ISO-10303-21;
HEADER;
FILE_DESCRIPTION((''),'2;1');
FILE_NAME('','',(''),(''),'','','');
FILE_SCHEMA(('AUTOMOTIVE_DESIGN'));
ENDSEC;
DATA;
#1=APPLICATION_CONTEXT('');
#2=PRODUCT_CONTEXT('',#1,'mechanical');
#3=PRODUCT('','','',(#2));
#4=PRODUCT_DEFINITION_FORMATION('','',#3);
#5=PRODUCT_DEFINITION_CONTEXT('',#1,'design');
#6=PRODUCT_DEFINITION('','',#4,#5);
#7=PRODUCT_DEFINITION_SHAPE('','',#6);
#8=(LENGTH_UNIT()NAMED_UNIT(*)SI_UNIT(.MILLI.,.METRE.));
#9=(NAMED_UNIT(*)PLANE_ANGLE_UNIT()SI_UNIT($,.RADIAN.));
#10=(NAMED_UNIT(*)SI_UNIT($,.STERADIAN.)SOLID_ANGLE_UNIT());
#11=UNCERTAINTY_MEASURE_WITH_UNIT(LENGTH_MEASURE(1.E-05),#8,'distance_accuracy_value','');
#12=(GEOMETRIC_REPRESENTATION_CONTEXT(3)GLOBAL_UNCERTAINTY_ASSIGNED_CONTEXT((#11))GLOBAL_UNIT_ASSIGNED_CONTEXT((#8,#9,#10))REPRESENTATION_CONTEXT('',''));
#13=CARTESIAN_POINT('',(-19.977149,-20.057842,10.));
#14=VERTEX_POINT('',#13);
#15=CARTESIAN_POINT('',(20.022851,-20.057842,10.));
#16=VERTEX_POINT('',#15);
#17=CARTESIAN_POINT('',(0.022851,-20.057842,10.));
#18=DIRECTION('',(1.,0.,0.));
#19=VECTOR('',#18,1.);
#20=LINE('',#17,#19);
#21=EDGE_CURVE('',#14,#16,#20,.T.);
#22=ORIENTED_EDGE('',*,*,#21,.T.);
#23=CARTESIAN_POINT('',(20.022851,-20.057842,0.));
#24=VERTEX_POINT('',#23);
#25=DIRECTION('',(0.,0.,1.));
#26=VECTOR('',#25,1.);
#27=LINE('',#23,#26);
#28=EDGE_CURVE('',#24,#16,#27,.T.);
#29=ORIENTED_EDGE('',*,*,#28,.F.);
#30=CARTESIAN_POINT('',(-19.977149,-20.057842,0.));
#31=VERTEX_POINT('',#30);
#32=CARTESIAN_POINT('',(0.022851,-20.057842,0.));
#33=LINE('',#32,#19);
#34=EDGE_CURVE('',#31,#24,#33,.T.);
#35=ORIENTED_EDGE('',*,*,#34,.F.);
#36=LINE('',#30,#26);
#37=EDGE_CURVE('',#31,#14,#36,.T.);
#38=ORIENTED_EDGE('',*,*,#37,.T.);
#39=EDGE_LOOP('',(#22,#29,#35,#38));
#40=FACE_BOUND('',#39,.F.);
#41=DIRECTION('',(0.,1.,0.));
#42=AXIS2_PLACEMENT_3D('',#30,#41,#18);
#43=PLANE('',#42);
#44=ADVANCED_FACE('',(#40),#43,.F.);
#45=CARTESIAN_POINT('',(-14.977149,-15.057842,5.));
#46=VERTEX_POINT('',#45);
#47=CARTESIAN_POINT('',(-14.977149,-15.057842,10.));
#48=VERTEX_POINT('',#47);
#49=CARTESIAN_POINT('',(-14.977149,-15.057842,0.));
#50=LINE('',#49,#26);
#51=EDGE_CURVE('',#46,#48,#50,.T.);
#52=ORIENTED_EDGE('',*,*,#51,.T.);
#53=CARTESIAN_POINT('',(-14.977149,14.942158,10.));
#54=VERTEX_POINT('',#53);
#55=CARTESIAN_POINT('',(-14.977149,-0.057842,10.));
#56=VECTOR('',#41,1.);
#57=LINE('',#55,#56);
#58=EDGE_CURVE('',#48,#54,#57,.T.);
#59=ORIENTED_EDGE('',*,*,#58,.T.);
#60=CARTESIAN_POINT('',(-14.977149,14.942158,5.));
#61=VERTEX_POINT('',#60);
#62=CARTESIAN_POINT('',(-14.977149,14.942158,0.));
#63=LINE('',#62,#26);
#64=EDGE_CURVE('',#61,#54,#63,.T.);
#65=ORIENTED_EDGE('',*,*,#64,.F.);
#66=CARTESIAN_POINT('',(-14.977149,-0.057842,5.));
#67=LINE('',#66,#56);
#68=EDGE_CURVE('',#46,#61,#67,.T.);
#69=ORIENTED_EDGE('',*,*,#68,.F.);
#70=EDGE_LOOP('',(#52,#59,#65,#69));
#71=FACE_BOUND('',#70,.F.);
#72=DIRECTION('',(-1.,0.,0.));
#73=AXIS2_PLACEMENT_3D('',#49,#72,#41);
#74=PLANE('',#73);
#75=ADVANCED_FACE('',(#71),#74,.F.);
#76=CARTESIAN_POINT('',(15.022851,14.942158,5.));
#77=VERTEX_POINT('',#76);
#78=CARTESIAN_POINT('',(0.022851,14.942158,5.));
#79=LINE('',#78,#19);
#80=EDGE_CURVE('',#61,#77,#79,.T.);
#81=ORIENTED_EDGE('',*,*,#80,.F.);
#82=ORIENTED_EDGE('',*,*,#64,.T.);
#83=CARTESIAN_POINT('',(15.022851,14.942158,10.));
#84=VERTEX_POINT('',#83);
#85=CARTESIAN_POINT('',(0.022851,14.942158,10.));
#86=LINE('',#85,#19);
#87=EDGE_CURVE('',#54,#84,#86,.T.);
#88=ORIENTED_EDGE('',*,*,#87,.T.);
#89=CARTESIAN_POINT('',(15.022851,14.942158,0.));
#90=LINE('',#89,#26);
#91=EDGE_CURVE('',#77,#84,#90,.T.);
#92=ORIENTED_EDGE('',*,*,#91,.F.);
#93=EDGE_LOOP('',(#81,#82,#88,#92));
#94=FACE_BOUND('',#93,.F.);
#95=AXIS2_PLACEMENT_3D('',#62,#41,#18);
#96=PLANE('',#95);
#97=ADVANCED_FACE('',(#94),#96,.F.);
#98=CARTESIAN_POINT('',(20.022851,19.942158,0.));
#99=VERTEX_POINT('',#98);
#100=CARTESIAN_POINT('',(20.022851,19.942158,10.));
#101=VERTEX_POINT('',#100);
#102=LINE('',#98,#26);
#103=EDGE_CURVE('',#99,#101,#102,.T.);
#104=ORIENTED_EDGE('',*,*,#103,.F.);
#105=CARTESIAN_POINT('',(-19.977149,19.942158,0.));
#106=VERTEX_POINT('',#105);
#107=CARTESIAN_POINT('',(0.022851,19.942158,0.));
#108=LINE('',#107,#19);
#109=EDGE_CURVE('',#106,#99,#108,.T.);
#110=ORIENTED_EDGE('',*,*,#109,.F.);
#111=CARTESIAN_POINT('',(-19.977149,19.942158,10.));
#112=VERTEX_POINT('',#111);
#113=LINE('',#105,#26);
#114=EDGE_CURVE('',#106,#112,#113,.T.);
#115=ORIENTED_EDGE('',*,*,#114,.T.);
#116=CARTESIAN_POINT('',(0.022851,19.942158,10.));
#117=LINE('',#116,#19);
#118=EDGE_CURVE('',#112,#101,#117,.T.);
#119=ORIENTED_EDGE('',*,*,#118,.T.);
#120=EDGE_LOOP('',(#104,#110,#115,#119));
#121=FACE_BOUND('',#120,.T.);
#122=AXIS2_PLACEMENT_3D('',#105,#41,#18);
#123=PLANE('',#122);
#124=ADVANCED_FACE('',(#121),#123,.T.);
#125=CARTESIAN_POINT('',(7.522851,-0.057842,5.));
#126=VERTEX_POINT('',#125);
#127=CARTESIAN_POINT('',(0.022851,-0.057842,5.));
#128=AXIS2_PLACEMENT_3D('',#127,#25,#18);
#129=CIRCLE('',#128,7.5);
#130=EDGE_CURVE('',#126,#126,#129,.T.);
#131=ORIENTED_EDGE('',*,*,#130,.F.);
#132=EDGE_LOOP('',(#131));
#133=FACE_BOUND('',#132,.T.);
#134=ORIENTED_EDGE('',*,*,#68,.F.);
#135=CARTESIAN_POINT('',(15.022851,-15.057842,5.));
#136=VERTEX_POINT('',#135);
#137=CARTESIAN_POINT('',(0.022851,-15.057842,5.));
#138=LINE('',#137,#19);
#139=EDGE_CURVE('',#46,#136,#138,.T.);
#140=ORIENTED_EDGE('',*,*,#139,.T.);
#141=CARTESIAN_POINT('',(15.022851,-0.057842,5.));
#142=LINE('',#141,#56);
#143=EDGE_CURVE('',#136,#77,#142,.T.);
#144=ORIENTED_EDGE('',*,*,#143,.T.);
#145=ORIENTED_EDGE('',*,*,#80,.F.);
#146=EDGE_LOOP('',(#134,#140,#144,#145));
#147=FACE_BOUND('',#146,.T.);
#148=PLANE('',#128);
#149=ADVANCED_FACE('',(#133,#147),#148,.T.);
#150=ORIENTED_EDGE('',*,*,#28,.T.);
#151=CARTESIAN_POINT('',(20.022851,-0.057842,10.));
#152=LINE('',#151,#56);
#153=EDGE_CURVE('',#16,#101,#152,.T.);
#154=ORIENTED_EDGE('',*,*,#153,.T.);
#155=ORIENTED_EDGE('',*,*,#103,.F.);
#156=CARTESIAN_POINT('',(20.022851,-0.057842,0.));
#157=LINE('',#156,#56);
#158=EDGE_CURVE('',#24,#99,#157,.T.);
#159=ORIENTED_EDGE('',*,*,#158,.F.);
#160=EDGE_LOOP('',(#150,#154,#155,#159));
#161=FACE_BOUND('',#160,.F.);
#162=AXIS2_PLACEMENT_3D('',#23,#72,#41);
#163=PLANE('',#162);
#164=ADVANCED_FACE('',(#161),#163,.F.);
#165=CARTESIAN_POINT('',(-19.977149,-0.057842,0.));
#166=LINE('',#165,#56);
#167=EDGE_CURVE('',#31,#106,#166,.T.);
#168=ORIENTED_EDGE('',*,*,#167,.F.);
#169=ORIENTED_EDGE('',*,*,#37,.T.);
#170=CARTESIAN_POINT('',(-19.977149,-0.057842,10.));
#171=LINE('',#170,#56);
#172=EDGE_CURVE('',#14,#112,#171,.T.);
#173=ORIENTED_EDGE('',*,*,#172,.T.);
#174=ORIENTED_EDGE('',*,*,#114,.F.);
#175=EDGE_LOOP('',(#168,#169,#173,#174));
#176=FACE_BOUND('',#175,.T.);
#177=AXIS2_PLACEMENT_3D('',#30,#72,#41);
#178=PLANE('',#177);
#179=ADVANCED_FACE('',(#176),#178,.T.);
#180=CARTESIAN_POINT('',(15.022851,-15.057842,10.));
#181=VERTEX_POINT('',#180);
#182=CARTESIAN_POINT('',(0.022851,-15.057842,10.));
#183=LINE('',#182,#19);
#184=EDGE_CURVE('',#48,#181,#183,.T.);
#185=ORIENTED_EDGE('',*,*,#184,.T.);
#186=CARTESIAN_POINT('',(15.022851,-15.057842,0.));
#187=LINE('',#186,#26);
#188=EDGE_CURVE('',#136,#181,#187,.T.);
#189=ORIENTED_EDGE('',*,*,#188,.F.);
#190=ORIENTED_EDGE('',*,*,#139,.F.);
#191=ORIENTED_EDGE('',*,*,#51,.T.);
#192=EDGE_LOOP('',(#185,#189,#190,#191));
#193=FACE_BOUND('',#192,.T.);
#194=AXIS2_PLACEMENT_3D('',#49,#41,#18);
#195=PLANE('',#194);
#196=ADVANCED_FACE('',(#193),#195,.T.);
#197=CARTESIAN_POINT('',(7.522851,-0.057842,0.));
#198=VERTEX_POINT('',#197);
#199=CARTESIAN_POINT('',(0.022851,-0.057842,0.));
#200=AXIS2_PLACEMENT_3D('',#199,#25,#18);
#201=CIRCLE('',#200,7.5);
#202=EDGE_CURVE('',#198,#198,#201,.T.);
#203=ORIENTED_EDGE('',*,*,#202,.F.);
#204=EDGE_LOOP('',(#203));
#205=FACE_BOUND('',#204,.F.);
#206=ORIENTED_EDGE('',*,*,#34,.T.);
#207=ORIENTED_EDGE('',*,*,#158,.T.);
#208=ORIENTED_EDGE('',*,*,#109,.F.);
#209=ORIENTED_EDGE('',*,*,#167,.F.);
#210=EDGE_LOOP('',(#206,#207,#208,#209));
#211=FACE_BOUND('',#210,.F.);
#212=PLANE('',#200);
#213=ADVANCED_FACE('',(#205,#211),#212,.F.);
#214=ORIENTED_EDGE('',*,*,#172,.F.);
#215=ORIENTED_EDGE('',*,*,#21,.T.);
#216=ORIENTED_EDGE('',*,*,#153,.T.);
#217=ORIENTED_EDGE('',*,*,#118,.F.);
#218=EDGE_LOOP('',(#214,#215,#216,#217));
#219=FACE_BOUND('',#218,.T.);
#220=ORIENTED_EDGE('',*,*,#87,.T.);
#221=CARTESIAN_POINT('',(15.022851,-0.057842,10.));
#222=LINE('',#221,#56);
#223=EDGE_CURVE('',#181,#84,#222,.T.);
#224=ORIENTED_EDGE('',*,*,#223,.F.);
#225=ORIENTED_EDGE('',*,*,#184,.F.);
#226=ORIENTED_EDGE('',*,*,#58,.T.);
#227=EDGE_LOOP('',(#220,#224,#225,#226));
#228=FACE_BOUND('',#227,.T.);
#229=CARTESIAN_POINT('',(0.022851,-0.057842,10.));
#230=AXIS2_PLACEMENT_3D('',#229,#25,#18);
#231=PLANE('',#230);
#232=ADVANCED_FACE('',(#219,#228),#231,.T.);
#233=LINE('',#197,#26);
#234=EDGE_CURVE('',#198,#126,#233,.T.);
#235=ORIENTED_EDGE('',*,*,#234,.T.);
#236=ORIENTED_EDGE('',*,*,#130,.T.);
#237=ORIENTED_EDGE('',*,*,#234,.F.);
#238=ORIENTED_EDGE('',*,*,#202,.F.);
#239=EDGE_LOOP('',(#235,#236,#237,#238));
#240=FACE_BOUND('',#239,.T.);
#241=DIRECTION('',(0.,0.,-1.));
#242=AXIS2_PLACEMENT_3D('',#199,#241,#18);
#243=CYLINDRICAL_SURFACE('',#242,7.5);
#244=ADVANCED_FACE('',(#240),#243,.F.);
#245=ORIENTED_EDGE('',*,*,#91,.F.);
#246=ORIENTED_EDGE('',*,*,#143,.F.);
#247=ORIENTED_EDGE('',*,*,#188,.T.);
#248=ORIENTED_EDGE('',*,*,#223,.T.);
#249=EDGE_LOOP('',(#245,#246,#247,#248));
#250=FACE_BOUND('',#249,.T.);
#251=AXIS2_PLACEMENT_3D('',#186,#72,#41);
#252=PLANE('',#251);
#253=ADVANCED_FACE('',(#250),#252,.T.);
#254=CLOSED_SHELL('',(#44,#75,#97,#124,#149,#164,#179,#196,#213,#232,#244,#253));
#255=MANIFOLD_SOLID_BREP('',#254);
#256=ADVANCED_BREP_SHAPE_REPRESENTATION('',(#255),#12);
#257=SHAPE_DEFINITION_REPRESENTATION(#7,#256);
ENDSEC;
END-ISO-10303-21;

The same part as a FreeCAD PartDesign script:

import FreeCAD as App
import Part
import Sketcher

V = App.Vector
Q = App.Units.Quantity


def add_polygon(sketch, points):
    """Adds a closed chain of lines whose ends are joined by coincident constraints."""
    first, n = sketch.GeometryCount, len(points)
    for a, b in zip(points, points[1:] + points[:1]):
        sketch.addGeometry(Part.LineSegment(App.Vector(*a, 0), App.Vector(*b, 0)), False)
    for i in range(n):
        sketch.addConstraint(Sketcher.Constraint("Coincident", first + i, 2, first + (i + 1) % n, 1))

doc = App.newDocument("Part")
params = doc.addObject("Spreadsheet::Sheet", "Params")
for row, (alias, value) in enumerate([
    ("sketch1_diameter", "15 mm"),
    ("sketch1_width", "30 mm"),
    ("pad1_length", "5 mm"),
    ("sketch2_width", "40 mm"),
    ("sketch2_width2", "30 mm"),
    ("pad2_length", "10 mm"),
], start=1):
    params.set(f"A{row}", alias)
    params.set(f"B{row}", "=" + value)
    params.setAlias(f"B{row}", alias)

body = doc.addObject("PartDesign::Body", "Body")

# Sketch on XY plane
sketch1 = body.newObject("Sketcher::SketchObject", "Sketch")
sketch1.AttachmentSupport = (doc.getObject("XY_Plane"), [""])
sketch1.MapMode = "FlatFace"
add_polygon(sketch1, [(-15, 15), (-15, -15), (15, -15), (15, 15)])  # lines 0-3
sketch1.addGeometry(Part.Circle(V(0, 0, 0), V(0, 0, 1), 8), False)  # 4
sketch1.addConstraint([
    Sketcher.Constraint("Vertical", 0),
    Sketcher.Constraint("Horizontal", 1),
    Sketcher.Constraint("Vertical", 2),
    Sketcher.Constraint("Horizontal", 3),
    Sketcher.Constraint("Equal", 3, 0),
    Sketcher.Constraint("Diameter", 4, Q("15 mm")),
    Sketcher.Constraint("DistanceX", 1, 1, 1, 2, Q("30 mm")),
    Sketcher.Constraint("DistanceX", 0, 2, 4, 3, Q("15 mm")),
    Sketcher.Constraint("DistanceY", 0, 2, 4, 3, Q("15 mm")),
    Sketcher.Constraint("DistanceX", -1, 1, 4, 3, Q("0.022851 mm")),
    Sketcher.Constraint("DistanceY", 4, 3, -1, 1, Q("0.057842 mm")),
])
sketch1.setExpression("Constraints[9]", "Params.sketch1_diameter")
sketch1.setExpression("Constraints[10]", "Params.sketch1_width")
pad1 = body.newObject("PartDesign::Pad", "Pad")
pad1.Profile = sketch1
pad1.setExpression("Length", "Params.pad1_length")

# Sketch on XY plane
sketch2 = body.newObject("Sketcher::SketchObject", "Sketch001")
sketch2.AttachmentSupport = (doc.getObject("XY_Plane"), [""])
sketch2.MapMode = "FlatFace"
add_polygon(sketch2, [(-20, 20), (-20, -20), (20, -20), (20, 20)])  # lines 0-3
add_polygon(sketch2, [(15, -15), (-15, -15), (-15, 15), (15, 15)])  # lines 4-7
sketch2.addConstraint([
    Sketcher.Constraint("Vertical", 0),
    Sketcher.Constraint("Horizontal", 1),
    Sketcher.Constraint("Vertical", 2),
    Sketcher.Constraint("Horizontal", 3),
    Sketcher.Constraint("Horizontal", 4),
    Sketcher.Constraint("Vertical", 5),
    Sketcher.Constraint("Horizontal", 6),
    Sketcher.Constraint("Vertical", 7),
    Sketcher.Constraint("Equal", 3, 0),
    Sketcher.Constraint("Equal", 6, 5),
    Sketcher.Constraint("DistanceX", 1, 1, 1, 2, Q("40 mm")),
    Sketcher.Constraint("DistanceX", 4, 2, 4, 1, Q("30 mm")),
    Sketcher.Constraint("DistanceX", 0, 2, 4, 2, Q("5 mm")),
    Sketcher.Constraint("DistanceY", 0, 2, 4, 2, Q("5 mm")),
    Sketcher.Constraint("DistanceX", 0, 2, -1, 1, Q("19.977149 mm")),
    Sketcher.Constraint("DistanceY", 0, 2, -1, 1, Q("20.057842 mm")),
])
sketch2.setExpression("Constraints[18]", "Params.sketch2_width")
sketch2.setExpression("Constraints[19]", "Params.sketch2_width2")
pad2 = body.newObject("PartDesign::Pad", "Pad001")
pad2.Profile = sketch2
pad2.setExpression("Length", "Params.pad2_length")

doc.recompute()
